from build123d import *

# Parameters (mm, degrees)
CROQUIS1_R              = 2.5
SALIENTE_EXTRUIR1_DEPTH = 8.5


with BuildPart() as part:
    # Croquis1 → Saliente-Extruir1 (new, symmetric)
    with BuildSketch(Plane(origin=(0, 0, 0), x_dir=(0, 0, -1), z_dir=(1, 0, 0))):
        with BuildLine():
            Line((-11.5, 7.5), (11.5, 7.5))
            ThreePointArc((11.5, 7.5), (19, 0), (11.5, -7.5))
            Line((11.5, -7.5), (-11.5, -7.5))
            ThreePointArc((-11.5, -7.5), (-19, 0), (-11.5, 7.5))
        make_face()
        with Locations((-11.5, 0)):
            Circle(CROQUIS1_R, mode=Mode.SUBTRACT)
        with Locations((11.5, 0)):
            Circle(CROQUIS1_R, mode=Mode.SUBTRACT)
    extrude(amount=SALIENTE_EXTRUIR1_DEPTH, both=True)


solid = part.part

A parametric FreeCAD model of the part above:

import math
import FreeCAD as App
import Part
import Sketcher
from FreeCAD import Vector
Q = App.Units.Quantity

doc = App.newDocument("Part")
body = doc.addObject("PartDesign::Body", "Body")

sketch1 = body.newObject("Sketcher::SketchObject", "Sketch")
sketch1.AttachmentSupport = (doc.getObject("YZ_Plane"), [""])
sketch1.MapMode = "FlatFace"
sketch1.addGeometry([
    Part.LineSegment(Vector(7.5, -11.5, 0), Vector(7.5, 11.5, 0)),
    Part.ArcOfCircle(Part.Circle(Vector(0, 11.5, 0), Vector(0, 0, 1), 7.5), math.radians(0), math.radians(180)),
    Part.LineSegment(Vector(-7.5, 11.5, 0), Vector(-7.5, -11.5, 0)),
    Part.ArcOfCircle(Part.Circle(Vector(0, -11.5, 0), Vector(0, 0, 1), 7.5), math.radians(180), math.radians(360)),
    Part.Circle(Vector(0, -11.5, 0), Vector(0, 0, 1), 2.5),
    Part.Circle(Vector(0, 11.5, 0), Vector(0, 0, 1), 2.5),
], False)
sketch1.addConstraint([
    Sketcher.Constraint("Tangent", 0, 2, 1, 1),
    Sketcher.Constraint("Tangent", 1, 2, 2, 1),
    Sketcher.Constraint("Tangent", 2, 2, 3, 1),
    Sketcher.Constraint("Tangent", 3, 2, 0, 1),
    Sketcher.Constraint("Vertical", 0),
    Sketcher.Constraint("Vertical", 2),
    Sketcher.Constraint("Coincident", 4, 3, 3, 3),
    Sketcher.Constraint("Coincident", 5, 3, 1, 3),
    Sketcher.Constraint("Equal", 4, 5),
    Sketcher.Constraint("Symmetric", 1, 3, 3, 3, -1, 1),
    Sketcher.Constraint("Diameter", 4, Q("5 mm")),
    Sketcher.Constraint("Radius", 1, Q("7.5 mm")),
    Sketcher.Constraint("DistanceY", 0, 1, 0, 2, Q("23 mm")),
])
pad1 = body.newObject("PartDesign::Pad", "Pad")
pad1.Profile = sketch1
pad1.Length = 17
pad1.Midplane = True

doc.recompute()
